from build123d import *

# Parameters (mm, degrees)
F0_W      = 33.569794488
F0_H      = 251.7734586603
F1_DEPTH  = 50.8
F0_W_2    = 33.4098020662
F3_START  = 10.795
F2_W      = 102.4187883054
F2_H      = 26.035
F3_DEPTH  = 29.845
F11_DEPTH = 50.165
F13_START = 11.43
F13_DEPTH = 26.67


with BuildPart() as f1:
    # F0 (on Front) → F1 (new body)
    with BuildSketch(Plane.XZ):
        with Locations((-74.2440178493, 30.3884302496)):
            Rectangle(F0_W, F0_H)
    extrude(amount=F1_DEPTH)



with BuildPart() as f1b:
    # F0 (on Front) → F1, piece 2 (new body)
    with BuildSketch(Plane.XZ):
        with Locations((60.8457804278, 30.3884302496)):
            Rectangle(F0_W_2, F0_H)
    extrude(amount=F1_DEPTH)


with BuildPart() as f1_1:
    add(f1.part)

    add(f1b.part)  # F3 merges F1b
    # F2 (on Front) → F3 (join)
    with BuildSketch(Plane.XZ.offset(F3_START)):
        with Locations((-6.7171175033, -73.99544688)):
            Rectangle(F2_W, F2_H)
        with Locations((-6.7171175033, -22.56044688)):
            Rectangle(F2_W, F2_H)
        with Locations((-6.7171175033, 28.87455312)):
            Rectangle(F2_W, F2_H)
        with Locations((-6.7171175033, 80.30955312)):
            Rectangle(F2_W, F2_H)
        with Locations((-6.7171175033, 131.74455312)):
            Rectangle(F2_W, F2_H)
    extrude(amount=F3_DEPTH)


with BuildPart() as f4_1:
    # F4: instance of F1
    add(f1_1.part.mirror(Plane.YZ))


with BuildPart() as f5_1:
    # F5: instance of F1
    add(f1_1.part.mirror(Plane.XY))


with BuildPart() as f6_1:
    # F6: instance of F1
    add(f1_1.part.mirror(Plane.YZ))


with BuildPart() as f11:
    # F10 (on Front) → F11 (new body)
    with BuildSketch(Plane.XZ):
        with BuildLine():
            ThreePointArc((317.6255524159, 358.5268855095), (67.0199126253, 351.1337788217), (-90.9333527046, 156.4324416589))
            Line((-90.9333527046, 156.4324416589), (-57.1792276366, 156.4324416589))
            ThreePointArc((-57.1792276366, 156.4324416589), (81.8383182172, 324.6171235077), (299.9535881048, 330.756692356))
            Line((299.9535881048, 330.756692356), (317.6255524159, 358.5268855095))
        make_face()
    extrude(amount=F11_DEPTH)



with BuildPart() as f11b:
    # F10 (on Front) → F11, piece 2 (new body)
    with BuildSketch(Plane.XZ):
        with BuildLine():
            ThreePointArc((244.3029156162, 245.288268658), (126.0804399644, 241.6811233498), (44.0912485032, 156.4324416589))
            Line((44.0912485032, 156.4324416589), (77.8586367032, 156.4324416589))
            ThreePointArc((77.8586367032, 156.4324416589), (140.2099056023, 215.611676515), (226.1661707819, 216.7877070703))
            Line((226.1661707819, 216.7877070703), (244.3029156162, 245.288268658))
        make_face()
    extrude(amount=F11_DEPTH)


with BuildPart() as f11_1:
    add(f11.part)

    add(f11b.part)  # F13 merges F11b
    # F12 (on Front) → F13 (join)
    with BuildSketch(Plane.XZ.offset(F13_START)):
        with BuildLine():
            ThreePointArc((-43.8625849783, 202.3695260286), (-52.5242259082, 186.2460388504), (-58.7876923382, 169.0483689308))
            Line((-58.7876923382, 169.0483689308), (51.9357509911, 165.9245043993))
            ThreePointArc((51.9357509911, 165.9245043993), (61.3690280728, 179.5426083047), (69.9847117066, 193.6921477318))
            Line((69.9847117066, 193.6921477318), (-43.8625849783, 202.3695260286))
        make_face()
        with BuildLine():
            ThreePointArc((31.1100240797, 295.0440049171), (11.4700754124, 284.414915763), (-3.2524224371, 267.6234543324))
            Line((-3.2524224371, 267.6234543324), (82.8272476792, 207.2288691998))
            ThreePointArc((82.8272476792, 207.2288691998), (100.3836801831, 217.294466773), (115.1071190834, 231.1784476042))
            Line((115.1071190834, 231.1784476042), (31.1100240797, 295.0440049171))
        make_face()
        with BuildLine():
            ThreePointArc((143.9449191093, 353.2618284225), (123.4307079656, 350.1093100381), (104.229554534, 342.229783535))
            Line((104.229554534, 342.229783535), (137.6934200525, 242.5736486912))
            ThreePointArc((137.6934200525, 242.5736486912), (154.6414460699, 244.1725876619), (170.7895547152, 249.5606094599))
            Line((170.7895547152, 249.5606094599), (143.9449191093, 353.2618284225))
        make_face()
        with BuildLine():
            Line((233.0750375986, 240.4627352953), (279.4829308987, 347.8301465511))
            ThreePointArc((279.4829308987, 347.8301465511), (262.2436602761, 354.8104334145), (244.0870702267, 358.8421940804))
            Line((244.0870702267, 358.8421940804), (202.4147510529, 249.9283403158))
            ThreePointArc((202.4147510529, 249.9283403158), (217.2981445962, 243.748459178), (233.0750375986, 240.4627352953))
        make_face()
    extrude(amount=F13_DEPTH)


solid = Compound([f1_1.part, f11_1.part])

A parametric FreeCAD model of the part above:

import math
import FreeCAD as App
import Part
import Sketcher

V = App.Vector
Q = App.Units.Quantity


def add_polygon(sketch, points):
    """Adds a closed chain of lines whose ends are joined by coincident constraints."""
    first, n = sketch.GeometryCount, len(points)
    for a, b in zip(points, points[1:] + points[:1]):
        sketch.addGeometry(Part.LineSegment(App.Vector(*a, 0), App.Vector(*b, 0)), False)
    for i in range(n):
        sketch.addConstraint(Sketcher.Constraint("Coincident", first + i, 2, first + (i + 1) % n, 1))

doc = App.newDocument("Part")
body = doc.addObject("PartDesign::Body", "Body")

sketch1 = body.newObject("Sketcher::SketchObject", "Sketch")
sketch1.AttachmentSupport = (doc.getObject("XZ_Plane"), [""])
sketch1.MapMode = "FlatFace"
add_polygon(sketch1, [(-91.028915, 156.27516), (-91.028915, -95.498299), (-57.459121, -95.498299), (-57.459121, 156.27516)])
sketch1.addConstraint([
    Sketcher.Constraint("Vertical", 0),
    Sketcher.Constraint("Horizontal", 1),
    Sketcher.Constraint("Vertical", 2),
    Sketcher.Constraint("Horizontal", 3),
    Sketcher.Constraint("DistanceY", 0, 2, 0, 1, 251.773459),
    Sketcher.Constraint("DistanceY", 0, 2, -1, 1, 95.498299),
    Sketcher.Constraint("DistanceX", 1, 1, 1, 2, 33.569794),
    Sketcher.Constraint("DistanceX", 1, 2, -1, 1, 57.459121),
])
pad1 = body.newObject("PartDesign::Pad", "Pad")
pad1.Profile = sketch1
pad1.Length = Q("2 in")
body2 = doc.addObject("PartDesign::Body", "Body001")

sketch2 = body2.newObject("Sketcher::SketchObject", "Sketch001")
sketch2.AttachmentSupport = (doc.getObject("XZ_Plane001"), [""])
sketch2.MapMode = "FlatFace"
add_polygon(sketch2, [(44.140879, 156.27516), (44.140879, -95.498299), (77.550681, -95.498299), (77.550681, 156.27516)])
sketch2.addConstraint([
    Sketcher.Constraint("Vertical", 0),
    Sketcher.Constraint("Horizontal", 1),
    Sketcher.Constraint("Vertical", 2),
    Sketcher.Constraint("Horizontal", 3),
    Sketcher.Constraint("DistanceY", 0, 2, 0, 1, 251.773459),
    Sketcher.Constraint("DistanceY", 0, 2, -1, 1, 95.498299),
    Sketcher.Constraint("DistanceX", 1, 1, 1, 2, 33.409802),
    Sketcher.Constraint("DistanceX", -1, 1, 0, 2, 44.140879),
])
pad2 = body2.newObject("PartDesign::Pad", "Pad001")
pad2.Profile = sketch2
pad2.Length = Q("2 in")
body.AllowCompound = True
doc.recompute()

boolean = body.newObject("PartDesign::Boolean", "Boolean")
boolean.Type = "Fuse"
boolean.addObjects([body2])

sketch3 = body.newObject("Sketcher::SketchObject", "Sketch002")
sketch3.AttachmentSupport = (doc.getObject("XZ_Plane"), [""])
sketch3.MapMode = "FlatFace"
sketch3.AttachmentOffset = App.Placement(V(0, 0, 0.425 * 25.4), App.Rotation())
add_polygon(sketch3, [(-57.926512, -60.977947), (-57.926512, -87.012947), (44.492277, -87.012947), (44.492277, -60.977947)])
add_polygon(sketch3, [(-57.926512, -9.542947), (-57.926512, -35.577947), (44.492277, -35.577947), (44.492277, -9.542947)])
add_polygon(sketch3, [(-57.926512, 41.892053), (-57.926512, 15.857053), (44.492277, 15.857053), (44.492277, 41.892053)])
add_polygon(sketch3, [(-57.926512, 93.327053), (-57.926512, 67.292053), (44.492277, 67.292053), (44.492277, 93.327053)])
add_polygon(sketch3, [(-57.926512, 144.762053), (-57.926512, 118.727053), (44.492277, 118.727053), (44.492277, 144.762053)])
sketch3.addConstraint([
    Sketcher.Constraint("Vertical", 0),
    Sketcher.Constraint("Horizontal", 1),
    Sketcher.Constraint("Vertical", 2),
    Sketcher.Constraint("Horizontal", 3),
    Sketcher.Constraint("Vertical", 4),
    Sketcher.Constraint("Horizontal", 5),
    Sketcher.Constraint("Vertical", 6),
    Sketcher.Constraint("Horizontal", 7),
    Sketcher.Constraint("Vertical", 8),
    Sketcher.Constraint("Horizontal", 9),
    Sketcher.Constraint("Vertical", 10),
    Sketcher.Constraint("Horizontal", 11),
    Sketcher.Constraint("Vertical", 12),
    Sketcher.Constraint("Horizontal", 13),
    Sketcher.Constraint("Vertical", 14),
    Sketcher.Constraint("Horizontal", 15),
    Sketcher.Constraint("Vertical", 16),
    Sketcher.Constraint("Horizontal", 17),
    Sketcher.Constraint("Vertical", 18),
    Sketcher.Constraint("Horizontal", 19),
    Sketcher.Constraint("Vertical", 3, 2, 4, 2),
    Sketcher.Constraint("Vertical", 2, 2, 5, 2),
    Sketcher.Constraint("Vertical", 7, 2, 8, 2),
    Sketcher.Constraint("Vertical", 6, 2, 9, 2),
    Sketcher.Constraint("Vertical", 11, 2, 12, 2),
    Sketcher.Constraint("Vertical", 10, 2, 13, 2),
    Sketcher.Constraint("Vertical", 15, 2, 16, 2),
    Sketcher.Constraint("Vertical", 14, 2, 17, 2),
    Sketcher.Constraint("Equal", 2, 4),
    Sketcher.Constraint("Equal", 6, 8),
    Sketcher.Constraint("Equal", 10, 12),
    Sketcher.Constraint("Equal", 14, 16),
    Sketcher.Constraint("DistanceY", 3, 2, 4, 2, Q("1 in")),
    Sketcher.Constraint("DistanceY", 7, 2, 8, 2, Q("1 in")),
    Sketcher.Constraint("DistanceY", 11, 2, 12, 2, Q("1 in")),
    Sketcher.Constraint("DistanceY", 15, 2, 16, 2, Q("1 in")),
    Sketcher.Constraint("DistanceY", 0, 2, 0, 1, Q("1.025 in")),
    Sketcher.Constraint("DistanceX", 1, 1, 1, 2, 102.418788),
    Sketcher.Constraint("DistanceX", 0, 2, -1, 1, 57.926512),
    Sketcher.Constraint("DistanceY", 0, 2, -1, 1, 87.012947),
])
pad3 = body.newObject("PartDesign::Pad", "Pad002")
pad3.Profile = sketch3
pad3.Length = Q("1.175 in")
body3 = doc.addObject("PartDesign::Body", "Body002")
doc.recompute()

mirroring = doc.addObject("Part::Mirroring", "Mirroring")
mirroring.Source = body
mirroring.Base = V(0, 0, 0)
mirroring.Normal = V(1, 0, 0)
body3.BaseFeature = mirroring
doc.recompute()
body4 = doc.addObject("PartDesign::Body", "Body003")
doc.recompute()

mirroring2 = doc.addObject("Part::Mirroring", "Mirroring001")
mirroring2.Source = body
mirroring2.Base = V(0, 0, 0)
mirroring2.Normal = V(0, 0, 1)
body4.BaseFeature = mirroring2
doc.recompute()
body5 = doc.addObject("PartDesign::Body", "Body004")
doc.recompute()

mirroring3 = doc.addObject("Part::Mirroring", "Mirroring002")
mirroring3.Source = body
mirroring3.Base = V(0, 0, 0)
mirroring3.Normal = V(1, 0, 0)
body5.BaseFeature = mirroring3
doc.recompute()
body6 = doc.addObject("PartDesign::Body", "Body005")

sketch4 = body6.newObject("Sketcher::SketchObject", "Sketch003")
sketch4.AttachmentSupport = (doc.getObject("XZ_Plane005"), [""])
sketch4.MapMode = "FlatFace"
sketch4.addGeometry([
    Part.ArcOfCircle(Part.Circle(V(200.385698, 81.518354, 0), V(0, 0, 1), 300.797124), math.radians(67.060192), math.radians(165.578586)),
    Part.LineSegment(V(-90.933353, 156.432442, 0), V(-57.179228, 156.432442, 0)),
    Part.ArcOfCircle(Part.Circle(V(197.661481, 87.333715, 0), V(0, 0, 1), 264.04246), math.radians(67.206699), math.radians(164.829308)),
    Part.LineSegment(V(299.953588, 330.756692, 0), V(317.625552, 358.526886, 0)),
], False)
sketch4.addConstraint([
    Sketcher.Constraint("Coincident", 0, 2, 1, 1),
    Sketcher.Constraint("Coincident", 1, 2, 2, 2),
    Sketcher.Constraint("Coincident", 2, 1, 3, 1),
    Sketcher.Constraint("Coincident", 3, 2, 0, 1),
    Sketcher.Constraint("Horizontal", 1),
    Sketcher.Constraint("Radius", 2, 264.04246),
    Sketcher.Constraint("Radius", 0, 300.797124),
    Sketcher.Constraint("DistanceX", 1, 1, 1, 2, 33.754125),
    Sketcher.Constraint("DistanceX", -1, 1, 2, 3, 197.661481),
    Sketcher.Constraint("DistanceY", -1, 1, 0, 2, 156.432442),
    Sketcher.Constraint("DistanceX", -1, 1, 2, 1, 299.953588),
    Sketcher.Constraint("DistanceY", 0, 3, 2, 3, 5.815361),
    Sketcher.Constraint("DistanceX", 1, 2, 2, 3, 254.840709),
    Sketcher.Constraint("DistanceX", 2, 3, 3, 2, 119.964071),
])
pad4 = body6.newObject("PartDesign::Pad", "Pad003")
pad4.Profile = sketch4
pad4.Length = Q("1.975 in")
body7 = doc.addObject("PartDesign::Body", "Body006")

sketch5 = body7.newObject("Sketcher::SketchObject", "Sketch004")
sketch5.AttachmentSupport = (doc.getObject("XZ_Plane006"), [""])
sketch5.MapMode = "FlatFace"
sketch5.addGeometry([
    Part.ArcOfCircle(Part.Circle(V(189.614626, 98.524667, 0), V(0, 0, 1), 156.621722), math.radians(69.563176), math.radians(158.301023)),
    Part.LineSegment(V(44.091249, 156.432442, 0), V(77.858637, 156.432442, 0)),
    Part.ArcOfCircle(Part.Circle(V(184.691526, 106.309541, 0), V(0, 0, 1), 118.006658), math.radians(69.423346), math.radians(154.865389)),
    Part.LineSegment(V(226.166171, 216.787707, 0), V(244.302916, 245.288269, 0)),
], False)
sketch5.addConstraint([
    Sketcher.Constraint("Coincident", 0, 2, 1, 1),
    Sketcher.Constraint("Coincident", 1, 2, 2, 2),
    Sketcher.Constraint("Coincident", 2, 1, 3, 1),
    Sketcher.Constraint("Coincident", 3, 2, 0, 1),
    Sketcher.Constraint("Horizontal", 1),
    Sketcher.Constraint("Distance", 3, Q("1.33 in")),
    Sketcher.Constraint("Radius", 0, 156.621722),
    Sketcher.Constraint("Radius", 2, 118.006658),
    Sketcher.Constraint("DistanceX", 1, 1, 1, 2, 33.767388),
    Sketcher.Constraint("DistanceX", 2, 3, 0, 3, 4.9231),
    Sketcher.Constraint("DistanceY", 2, 3, 0, 2, 50.122901),
    Sketcher.Constraint("DistanceY", 0, 3, 3, 2, 146.763602),
    Sketcher.Constraint("DistanceY", -1, 1, 2, 3, 106.309541),
    Sketcher.Constraint("DistanceX", -1, 1, 0, 2, 44.091249),
])
pad5 = body7.newObject("PartDesign::Pad", "Pad004")
pad5.Profile = sketch5
pad5.Length = Q("1.975 in")
body6.AllowCompound = True
doc.recompute()

boolean2 = body6.newObject("PartDesign::Boolean", "Boolean001")
boolean2.Type = "Fuse"
boolean2.addObjects([body7])

sketch6 = body6.newObject("Sketcher::SketchObject", "Sketch005")
sketch6.AttachmentSupport = (doc.getObject("XZ_Plane005"), [""])
sketch6.MapMode = "FlatFace"
sketch6.AttachmentOffset = App.Placement(V(0, 0, 0.45 * 25.4), App.Rotation())
sketch6.addGeometry([
    Part.ArcOfCircle(Part.Circle(V(63.819555, 134.1337, 0), V(0, 0, 1), 127.48165), math.radians(147.638456), math.radians(164.104722)),
    Part.LineSegment(V(-58.787692, 169.048369, 0), V(51.935751, 165.924504, 0)),
    Part.ArcOfCircle(Part.Circle(V(-174.601086, 332.923119, 0), V(0, 0, 1), 281.438227), math.radians(-36.396928), math.radians(-29.650785)),
    Part.LineSegment(V(69.984712, 193.692148, 0), V(-43.862585, 202.369526, 0)),
    Part.ArcOfCircle(Part.Circle(V(50.924863, 234.971596, 0), V(0, 0, 1), 63.256005), math.radians(108.255101), math.radians(148.923245)),
    Part.LineSegment(V(-3.252422, 267.623454, 0), V(82.827248, 207.228869, 0)),
    Part.ArcOfCircle(Part.Circle(V(49.059159, 286.471005, 0), V(0, 0, 1), 86.1371), math.radians(-66.919302), math.radians(-39.934645)),
    Part.LineSegment(V(115.107119, 231.178448, 0), V(31.110024, 295.044005, 0)),
    Part.ArcOfCircle(Part.Circle(V(146.931224, 265.507446, 0), V(0, 0, 1), 87.80518), math.radians(91.949038), math.radians(119.099181)),
    Part.LineSegment(V(104.229555, 342.229784, 0), V(137.69342, 242.573649, 0)),
    Part.ArcOfCircle(Part.Circle(V(139.184384, 317.390259, 0), V(0, 0, 1), 74.831465), math.radians(-91.141654), math.radians(-65.016873)),
    Part.LineSegment(V(170.789555, 249.560609, 0), V(143.944919, 353.261828, 0)),
    Part.LineSegment(V(233.075038, 240.462735, 0), V(279.482931, 347.830147, 0)),
    Part.ArcOfCircle(Part.Circle(V(228.96554, 247.845065, 0), V(0, 0, 1), 112.022423), math.radians(63.194845), math.radians(82.242153)),
    Part.LineSegment(V(244.08707, 358.842194, 0), V(202.414751, 249.92834, 0)),
    Part.ArcOfCircle(Part.Circle(V(242.590835, 325.674667, 0), V(0, 0, 1), 85.74161), math.radians(-117.941616), math.radians(-96.371941)),
], False)
sketch6.addConstraint([
    Sketcher.Constraint("Coincident", 0, 2, 1, 1),
    Sketcher.Constraint("Coincident", 1, 2, 2, 1),
    Sketcher.Constraint("Coincident", 2, 2, 3, 1),
    Sketcher.Constraint("Coincident", 3, 2, 0, 1),
    Sketcher.Constraint("Coincident", 4, 2, 5, 1),
    Sketcher.Constraint("Coincident", 5, 2, 6, 1),
    Sketcher.Constraint("Coincident", 6, 2, 7, 1),
    Sketcher.Constraint("Coincident", 7, 2, 4, 1),
    Sketcher.Constraint("Coincident", 8, 2, 9, 1),
    Sketcher.Constraint("Coincident", 9, 2, 10, 1),
    Sketcher.Constraint("Coincident", 10, 2, 11, 1),
    Sketcher.Constraint("Coincident", 11, 2, 8, 1),
    Sketcher.Constraint("Coincident", 12, 2, 13, 1),
    Sketcher.Constraint("Coincident", 13, 2, 14, 1),
    Sketcher.Constraint("Coincident", 14, 2, 15, 1),
    Sketcher.Constraint("Coincident", 15, 2, 12, 1),
    Sketcher.Constraint("Radius", 6, 86.1371),
    Sketcher.Constraint("Radius", 0, 127.48165),
    Sketcher.Constraint("Radius", 8, 87.80518),
    Sketcher.Constraint("Radius", 15, 85.74161),
    Sketcher.Constraint("DistanceX", -1, 1, 10, 3, Q("5.4797002 in")),
    Sketcher.Constraint("Radius", 2, 281.438227),
    Sketcher.Constraint("Radius", 4, 63.256005),
    Sketcher.Constraint("Radius", 10, 74.831465),
    Sketcher.Constraint("Radius", 13, 112.022423),
    Sketcher.Constraint("DistanceY", 6, 2, 8, 2, Q("4.3720998 in")),
    Sketcher.Constraint("Distance", 1, 110.767502),
    Sketcher.Constraint("DistanceY", -1, 1, 0, 3, 134.1337),
    Sketcher.Constraint("DistanceY", 13, 3, 15, 3, 77.829602),
    Sketcher.Constraint("DistanceY", 1, 2, 6, 3, 120.546501),
    Sketcher.Constraint("DistanceY", 2, 2, 8, 3, 71.815298),
    Sketcher.Constraint("DistanceY", 6, 2, 8, 3, 34.328999),
    Sketcher.Constraint("DistanceY", 6, 3, 7, 2, 8.572999),
    Sketcher.Constraint("DistanceX", 6, 2, 9, 2, 22.586301),
    Sketcher.Constraint("DistanceY", 6, 2, 9, 2, 11.395201),
    Sketcher.Constraint("Distance", 3, 114.17751),
    Sketcher.Constraint("Distance", 9, 105.124571),
    Sketcher.Constraint("DistanceY", -1, 1, 2, 3, 332.923119),
    Sketcher.Constraint("DistanceX", -1, 1, 6, 3, 49.059159),
    Sketcher.Constraint("DistanceY", -1, 1, 10, 3, 317.390259),
    Sketcher.Constraint("DistanceX", -1, 1, 13, 3, 228.96554),
    Sketcher.Constraint("DistanceY", -1, 1, 0, 2, 169.048369),
    Sketcher.Constraint("DistanceX", -1, 1, 1, 2, 51.935751),
    Sketcher.Constraint("DistanceY", -1, 1, 5, 2, 207.228869),
    Sketcher.Constraint("DistanceX", -1, 1, 6, 2, 115.107119),
    Sketcher.Constraint("DistanceY", -1, 1, 10, 2, 249.560609),
    Sketcher.Constraint("DistanceX", -1, 1, 11, 2, 143.944919),
    Sketcher.Constraint("DistanceX", -1, 1, 12, 2, 279.482931),
    Sketcher.Constraint("DistanceX", -1, 1, 13, 2, 244.08707),
    Sketcher.Constraint("DistanceX", -1, 1, 14, 2, 202.414751),
    Sketcher.Constraint("DistanceY", -1, 1, 14, 2, 249.92834),
    Sketcher.Constraint("DistanceX", 4, 3, 0, 3, 12.894691),
    Sketcher.Constraint("DistanceY", 4, 3, 6, 3, 51.499409),
    Sketcher.Constraint("DistanceY", 13, 3, 8, 3, 17.662381),
    Sketcher.Constraint("DistanceX", 4, 2, 6, 3, 52.311582),
    Sketcher.Constraint("DistanceY", 15, 2, 13, 3, 7.38233),
])
pad6 = body6.newObject("PartDesign::Pad", "Pad005")
pad6.Profile = sketch6
pad6.Length = Q("1.05 in")
body3.Visibility = False
body4.Visibility = False
body5.Visibility = False
mirroring.Visibility = False
mirroring2.Visibility = False
mirroring3.Visibility = False

doc.recompute()
